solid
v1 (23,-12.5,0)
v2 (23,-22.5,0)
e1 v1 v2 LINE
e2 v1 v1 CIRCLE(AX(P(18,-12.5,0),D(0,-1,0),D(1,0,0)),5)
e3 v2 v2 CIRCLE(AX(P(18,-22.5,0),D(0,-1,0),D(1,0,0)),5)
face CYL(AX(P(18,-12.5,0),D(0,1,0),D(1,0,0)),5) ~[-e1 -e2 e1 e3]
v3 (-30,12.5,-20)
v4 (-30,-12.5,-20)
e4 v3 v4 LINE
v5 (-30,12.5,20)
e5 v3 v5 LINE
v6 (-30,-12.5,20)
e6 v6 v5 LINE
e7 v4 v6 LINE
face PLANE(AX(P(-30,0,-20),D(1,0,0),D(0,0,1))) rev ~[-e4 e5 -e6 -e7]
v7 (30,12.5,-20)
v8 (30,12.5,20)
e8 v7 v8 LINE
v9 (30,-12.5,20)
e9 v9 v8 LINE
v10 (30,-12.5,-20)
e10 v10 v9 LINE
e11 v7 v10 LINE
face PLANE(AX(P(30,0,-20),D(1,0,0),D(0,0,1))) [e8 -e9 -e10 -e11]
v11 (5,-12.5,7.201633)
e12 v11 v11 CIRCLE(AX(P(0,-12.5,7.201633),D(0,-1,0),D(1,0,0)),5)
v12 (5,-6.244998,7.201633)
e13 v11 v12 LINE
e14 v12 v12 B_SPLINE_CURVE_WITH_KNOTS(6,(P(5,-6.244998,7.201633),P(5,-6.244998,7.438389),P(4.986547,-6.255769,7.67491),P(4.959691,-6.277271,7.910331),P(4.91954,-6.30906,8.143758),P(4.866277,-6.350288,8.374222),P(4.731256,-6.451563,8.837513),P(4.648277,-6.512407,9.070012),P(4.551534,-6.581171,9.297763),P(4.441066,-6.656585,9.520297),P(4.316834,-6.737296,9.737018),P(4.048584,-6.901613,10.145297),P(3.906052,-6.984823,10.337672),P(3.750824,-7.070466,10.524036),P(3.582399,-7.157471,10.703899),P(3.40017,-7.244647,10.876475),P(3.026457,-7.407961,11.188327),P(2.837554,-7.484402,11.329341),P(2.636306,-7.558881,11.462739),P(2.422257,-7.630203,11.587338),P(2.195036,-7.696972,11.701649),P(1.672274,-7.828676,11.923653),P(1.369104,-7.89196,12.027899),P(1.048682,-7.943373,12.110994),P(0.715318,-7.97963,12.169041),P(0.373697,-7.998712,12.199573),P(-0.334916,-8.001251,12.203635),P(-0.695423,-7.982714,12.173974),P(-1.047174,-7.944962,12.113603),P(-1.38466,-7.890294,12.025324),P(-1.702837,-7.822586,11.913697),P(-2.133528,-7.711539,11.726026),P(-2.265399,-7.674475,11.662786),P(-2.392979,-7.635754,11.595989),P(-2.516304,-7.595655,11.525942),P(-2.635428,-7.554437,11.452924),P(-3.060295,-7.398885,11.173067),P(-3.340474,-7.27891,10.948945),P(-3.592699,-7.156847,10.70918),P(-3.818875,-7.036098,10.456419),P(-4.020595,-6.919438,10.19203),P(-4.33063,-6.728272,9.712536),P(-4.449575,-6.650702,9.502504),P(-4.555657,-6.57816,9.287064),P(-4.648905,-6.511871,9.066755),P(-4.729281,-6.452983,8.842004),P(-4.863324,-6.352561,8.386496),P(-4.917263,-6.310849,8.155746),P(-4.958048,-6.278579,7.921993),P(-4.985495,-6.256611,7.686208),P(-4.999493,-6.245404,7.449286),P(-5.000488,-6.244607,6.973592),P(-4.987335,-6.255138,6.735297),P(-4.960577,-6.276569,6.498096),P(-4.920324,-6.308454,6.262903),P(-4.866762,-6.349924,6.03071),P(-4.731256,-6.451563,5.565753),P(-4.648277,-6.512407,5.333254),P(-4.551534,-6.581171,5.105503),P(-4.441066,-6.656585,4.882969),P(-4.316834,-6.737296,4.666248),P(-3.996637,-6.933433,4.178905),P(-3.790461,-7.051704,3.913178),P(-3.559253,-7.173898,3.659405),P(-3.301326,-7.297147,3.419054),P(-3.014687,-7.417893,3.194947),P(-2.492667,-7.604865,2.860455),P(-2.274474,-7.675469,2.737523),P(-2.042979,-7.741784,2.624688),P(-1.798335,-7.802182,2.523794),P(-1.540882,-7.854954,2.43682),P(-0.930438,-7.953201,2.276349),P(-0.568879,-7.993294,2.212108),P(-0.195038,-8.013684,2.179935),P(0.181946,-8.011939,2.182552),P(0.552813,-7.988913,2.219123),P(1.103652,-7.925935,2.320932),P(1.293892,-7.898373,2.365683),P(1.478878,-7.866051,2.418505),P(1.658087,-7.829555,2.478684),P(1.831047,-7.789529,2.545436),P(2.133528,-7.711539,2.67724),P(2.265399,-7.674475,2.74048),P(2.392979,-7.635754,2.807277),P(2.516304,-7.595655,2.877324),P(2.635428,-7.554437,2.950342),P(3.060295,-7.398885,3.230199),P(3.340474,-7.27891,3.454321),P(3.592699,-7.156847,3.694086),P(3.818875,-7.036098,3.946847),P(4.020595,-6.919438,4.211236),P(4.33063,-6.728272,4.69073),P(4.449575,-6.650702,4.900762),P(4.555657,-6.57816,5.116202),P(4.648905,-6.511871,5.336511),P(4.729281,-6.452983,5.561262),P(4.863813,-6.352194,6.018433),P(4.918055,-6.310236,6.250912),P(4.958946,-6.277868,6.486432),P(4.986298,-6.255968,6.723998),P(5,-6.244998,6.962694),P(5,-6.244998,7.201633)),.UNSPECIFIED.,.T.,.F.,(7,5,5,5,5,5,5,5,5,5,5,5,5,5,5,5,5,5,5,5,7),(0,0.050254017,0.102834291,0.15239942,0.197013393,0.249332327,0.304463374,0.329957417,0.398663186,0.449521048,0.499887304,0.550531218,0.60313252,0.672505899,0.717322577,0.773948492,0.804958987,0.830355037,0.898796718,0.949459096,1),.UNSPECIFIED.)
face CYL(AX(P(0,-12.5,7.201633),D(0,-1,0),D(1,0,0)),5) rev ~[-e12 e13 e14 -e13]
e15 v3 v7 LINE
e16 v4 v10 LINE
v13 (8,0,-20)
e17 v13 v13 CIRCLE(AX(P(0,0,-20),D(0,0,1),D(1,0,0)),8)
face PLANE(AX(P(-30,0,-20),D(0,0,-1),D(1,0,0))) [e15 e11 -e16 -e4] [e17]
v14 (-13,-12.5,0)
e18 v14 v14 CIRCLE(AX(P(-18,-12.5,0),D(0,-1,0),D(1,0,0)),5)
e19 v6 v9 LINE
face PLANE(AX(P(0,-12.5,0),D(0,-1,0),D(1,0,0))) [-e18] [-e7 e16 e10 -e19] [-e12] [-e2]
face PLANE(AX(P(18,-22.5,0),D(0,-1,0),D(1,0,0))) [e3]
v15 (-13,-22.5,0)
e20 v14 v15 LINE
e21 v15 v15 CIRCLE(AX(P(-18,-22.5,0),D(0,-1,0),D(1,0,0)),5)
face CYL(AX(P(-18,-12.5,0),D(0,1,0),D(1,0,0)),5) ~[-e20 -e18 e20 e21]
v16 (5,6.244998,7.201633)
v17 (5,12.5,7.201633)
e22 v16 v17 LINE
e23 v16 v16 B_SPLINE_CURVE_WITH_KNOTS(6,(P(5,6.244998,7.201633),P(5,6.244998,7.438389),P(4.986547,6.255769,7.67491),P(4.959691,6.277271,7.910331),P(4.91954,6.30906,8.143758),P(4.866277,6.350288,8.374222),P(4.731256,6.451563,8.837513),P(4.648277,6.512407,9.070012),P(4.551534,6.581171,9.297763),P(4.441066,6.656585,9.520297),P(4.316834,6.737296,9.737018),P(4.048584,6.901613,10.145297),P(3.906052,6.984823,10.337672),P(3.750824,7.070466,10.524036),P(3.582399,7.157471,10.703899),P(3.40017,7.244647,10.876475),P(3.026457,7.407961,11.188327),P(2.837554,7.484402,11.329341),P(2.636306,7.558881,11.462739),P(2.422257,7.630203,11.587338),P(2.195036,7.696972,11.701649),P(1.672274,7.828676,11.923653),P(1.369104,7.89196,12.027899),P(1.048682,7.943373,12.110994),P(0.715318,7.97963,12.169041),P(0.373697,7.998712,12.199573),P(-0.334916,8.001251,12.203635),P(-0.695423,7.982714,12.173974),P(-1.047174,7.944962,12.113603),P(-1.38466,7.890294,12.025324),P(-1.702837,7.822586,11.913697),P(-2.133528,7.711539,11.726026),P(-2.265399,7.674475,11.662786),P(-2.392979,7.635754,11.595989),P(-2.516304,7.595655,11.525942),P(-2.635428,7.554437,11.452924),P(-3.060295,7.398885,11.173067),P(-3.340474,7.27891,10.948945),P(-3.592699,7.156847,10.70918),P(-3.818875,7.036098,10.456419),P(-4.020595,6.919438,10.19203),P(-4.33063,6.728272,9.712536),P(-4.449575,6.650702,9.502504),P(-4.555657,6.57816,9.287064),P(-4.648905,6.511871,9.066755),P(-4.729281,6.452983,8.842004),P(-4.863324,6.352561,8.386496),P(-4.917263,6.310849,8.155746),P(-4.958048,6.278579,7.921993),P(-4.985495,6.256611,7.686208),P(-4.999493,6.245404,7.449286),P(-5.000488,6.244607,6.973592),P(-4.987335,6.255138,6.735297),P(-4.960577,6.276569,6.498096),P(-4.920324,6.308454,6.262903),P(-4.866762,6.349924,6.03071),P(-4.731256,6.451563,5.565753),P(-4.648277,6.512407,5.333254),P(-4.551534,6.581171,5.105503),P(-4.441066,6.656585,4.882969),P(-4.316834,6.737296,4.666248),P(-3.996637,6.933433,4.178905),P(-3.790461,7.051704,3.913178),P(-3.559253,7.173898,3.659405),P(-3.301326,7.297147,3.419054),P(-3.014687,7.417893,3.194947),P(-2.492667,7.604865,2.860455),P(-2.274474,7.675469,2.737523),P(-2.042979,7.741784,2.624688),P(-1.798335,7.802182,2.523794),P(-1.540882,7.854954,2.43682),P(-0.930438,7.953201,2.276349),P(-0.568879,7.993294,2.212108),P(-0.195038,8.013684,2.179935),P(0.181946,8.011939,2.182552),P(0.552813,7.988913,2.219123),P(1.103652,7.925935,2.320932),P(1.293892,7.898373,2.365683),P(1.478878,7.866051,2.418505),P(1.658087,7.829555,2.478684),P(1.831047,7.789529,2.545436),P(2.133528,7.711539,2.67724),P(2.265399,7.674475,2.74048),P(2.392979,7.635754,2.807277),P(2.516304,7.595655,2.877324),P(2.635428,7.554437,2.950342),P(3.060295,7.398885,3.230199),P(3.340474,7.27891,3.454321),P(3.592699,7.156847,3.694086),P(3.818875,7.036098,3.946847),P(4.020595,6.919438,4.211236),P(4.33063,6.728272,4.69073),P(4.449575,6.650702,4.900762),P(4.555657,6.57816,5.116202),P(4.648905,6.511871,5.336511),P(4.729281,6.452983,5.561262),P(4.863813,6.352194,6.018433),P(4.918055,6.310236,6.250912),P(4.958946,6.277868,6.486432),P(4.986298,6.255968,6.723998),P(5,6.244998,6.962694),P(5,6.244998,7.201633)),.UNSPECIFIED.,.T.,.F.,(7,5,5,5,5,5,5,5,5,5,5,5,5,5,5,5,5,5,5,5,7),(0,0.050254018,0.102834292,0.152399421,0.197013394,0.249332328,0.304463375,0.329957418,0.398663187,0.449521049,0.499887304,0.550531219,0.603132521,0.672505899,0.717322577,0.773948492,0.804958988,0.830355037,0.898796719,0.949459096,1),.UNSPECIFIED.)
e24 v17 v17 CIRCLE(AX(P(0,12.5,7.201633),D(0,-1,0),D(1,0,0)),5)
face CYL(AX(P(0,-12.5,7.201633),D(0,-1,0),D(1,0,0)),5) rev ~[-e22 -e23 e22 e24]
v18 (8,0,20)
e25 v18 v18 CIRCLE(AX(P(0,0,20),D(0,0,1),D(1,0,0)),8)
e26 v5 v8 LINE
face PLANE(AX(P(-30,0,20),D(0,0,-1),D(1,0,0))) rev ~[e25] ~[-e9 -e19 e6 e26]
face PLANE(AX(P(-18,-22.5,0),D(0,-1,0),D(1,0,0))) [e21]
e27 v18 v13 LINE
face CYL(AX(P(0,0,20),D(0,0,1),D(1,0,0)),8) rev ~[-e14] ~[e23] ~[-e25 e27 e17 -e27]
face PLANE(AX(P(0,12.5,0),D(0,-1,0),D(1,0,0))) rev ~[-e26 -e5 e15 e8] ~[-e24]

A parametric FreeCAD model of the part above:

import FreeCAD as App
import Part
import Sketcher

V = App.Vector

doc = App.newDocument("Part")
body = doc.addObject("PartDesign::Body", "Body")

# Sketch on XZ plane
sketch1 = body.newObject("Sketcher::SketchObject", "Sketch")
sketch1.AttachmentSupport = (doc.getObject("XZ_Plane"), [""])
sketch1.MapMode = "FlatFace"
sketch1.addGeometry([
    Part.LineSegment(V(-30, 20, 0), V(-30, -20, 0)),
    Part.LineSegment(V(-30, -20, 0), V(30, -20, 0)),
    Part.LineSegment(V(30, -20, 0), V(30, 20, 0)),
    Part.LineSegment(V(30, 20, 0), V(-30, 20, 0)),
], False)
sketch1.addConstraint([
    Sketcher.Constraint("Coincident", 0, 2, 1, 1),
    Sketcher.Constraint("Coincident", 1, 2, 2, 1),
    Sketcher.Constraint("Coincident", 2, 2, 3, 1),
    Sketcher.Constraint("Coincident", 3, 2, 0, 1),
    Sketcher.Constraint("Vertical", 0),
    Sketcher.Constraint("Horizontal", 1),
    Sketcher.Constraint("Vertical", 2),
    Sketcher.Constraint("Horizontal", 3),
    Sketcher.Constraint("Symmetric", 0, 2, 2, 2, -1, 1),
    Sketcher.Constraint("DistanceX", 1, 1, 1, 2, 60.0),
    Sketcher.Constraint("DistanceY", 0, 2, 0, 1, 40.0),
])
pad1 = body.newObject("PartDesign::Pad", "Pad")
pad1.Profile = sketch1
pad1.Length = 25
pad1.Midplane = True

# Sketch on XY plane
sketch2 = body.newObject("Sketcher::SketchObject", "Sketch001")
sketch2.AttachmentSupport = (doc.getObject("XY_Plane"), [""])
sketch2.MapMode = "FlatFace"
sketch2.AttachmentOffset = App.Placement(V(0, 0, 20), App.Rotation())
sketch2.addGeometry(Part.Circle(V(0, 0, 0), V(0, 0, 1), 8), False)
sketch2.addConstraint([
    Sketcher.Constraint("Coincident", 0, 3, -1, 1),
    Sketcher.Constraint("Diameter", 0, 16.0),
])
pocket1 = body.newObject("PartDesign::Pocket", "Pocket")
pocket1.Profile = sketch2
pocket1.Type = "ThroughAll"

# Sketch on XZ plane
sketch3 = body.newObject("Sketcher::SketchObject", "Sketch002")
sketch3.AttachmentSupport = (doc.getObject("XZ_Plane"), [""])
sketch3.MapMode = "FlatFace"
sketch3.AttachmentOffset = App.Placement(V(0, 0, 12.5), App.Rotation())
sketch3.addGeometry([
    Part.Circle(V(-18, 0, 0), V(0, 0, 1), 5),
    Part.Circle(V(18, 0, 0), V(0, 0, 1), 5),
], False)
sketch3.addConstraint([
    Sketcher.Constraint("Equal", 0, 1),
    Sketcher.Constraint("Symmetric", 0, 3, 1, 3, -1, 1),
    Sketcher.Constraint("PointOnObject", 0, 3, -1),
    Sketcher.Constraint("Diameter", 0, 10.0),
    Sketcher.Constraint("DistanceX", 0, 3, -1, 1, 18.0),
])
pad2 = body.newObject("PartDesign::Pad", "Pad001")
pad2.Profile = sketch3
pad2.Length = 10

# Sketch on XZ plane
sketch4 = body.newObject("Sketcher::SketchObject", "Sketch003")
sketch4.AttachmentSupport = (doc.getObject("XZ_Plane"), [""])
sketch4.MapMode = "FlatFace"
sketch4.AttachmentOffset = App.Placement(V(0, 0, 12.5), App.Rotation())
sketch4.addGeometry(Part.Circle(V(0, 7, 0), V(0, 0, 1), 5), False)
sketch4.addConstraint([
    Sketcher.Constraint("PointOnObject", 0, 3, -2),
    Sketcher.Constraint("Diameter", 0, 10.0),
    Sketcher.Constraint("DistanceY", -1, 1, 0, 3, 7.201633),
])
pocket2 = body.newObject("PartDesign::Pocket", "Pocket001")
pocket2.Profile = sketch4
pocket2.Length = 25

doc.recompute()
